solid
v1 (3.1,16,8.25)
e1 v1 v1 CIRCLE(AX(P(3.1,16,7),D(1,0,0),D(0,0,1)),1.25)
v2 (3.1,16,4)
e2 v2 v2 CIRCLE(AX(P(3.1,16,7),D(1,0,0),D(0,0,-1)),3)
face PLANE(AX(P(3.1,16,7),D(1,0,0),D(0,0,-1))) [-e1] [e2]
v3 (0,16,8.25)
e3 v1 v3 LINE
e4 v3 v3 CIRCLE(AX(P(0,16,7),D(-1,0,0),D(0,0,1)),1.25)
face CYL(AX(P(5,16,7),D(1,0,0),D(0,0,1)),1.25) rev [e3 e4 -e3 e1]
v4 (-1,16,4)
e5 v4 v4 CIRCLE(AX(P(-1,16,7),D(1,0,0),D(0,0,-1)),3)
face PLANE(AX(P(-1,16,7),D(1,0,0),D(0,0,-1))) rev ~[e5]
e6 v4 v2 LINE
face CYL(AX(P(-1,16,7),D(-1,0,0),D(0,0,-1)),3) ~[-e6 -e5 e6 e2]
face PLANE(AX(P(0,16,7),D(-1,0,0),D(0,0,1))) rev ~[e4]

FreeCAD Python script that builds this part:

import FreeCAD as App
import Part
import Sketcher

V = App.Vector

doc = App.newDocument("Part")
params = doc.addObject("Spreadsheet::Sheet", "Params")
for row, (alias, value) in enumerate([
    ("sketch1_diameter", "2.5 mm"),
    ("pad1_length", "5 mm"),
    ("sketch2_diameter", "6 mm"),
    ("pad2_length", "4.1 mm"),
], start=1):
    params.set(f"A{row}", alias)
    params.set(f"B{row}", "=" + value)
    params.setAlias(f"B{row}", alias)

body = doc.addObject("PartDesign::Body", "Body")

# Sketch on YZ plane
sketch1 = body.newObject("Sketcher::SketchObject", "Sketch")
sketch1.AttachmentSupport = (doc.getObject("YZ_Plane"), [""])
sketch1.MapMode = "FlatFace"
sketch1.AttachmentOffset = App.Placement(V(0, 0, 5), App.Rotation())
sketch1.addGeometry(Part.Circle(V(16, 7, 0), V(0, 0, 1), 1.2), False)
sketch1.addConstraint([
    Sketcher.Constraint("Diameter", 0, 2.5),
    Sketcher.Constraint("DistanceX", -1, 1, 0, 3, 16.0),
    Sketcher.Constraint("DistanceY", -1, 1, 0, 3, 7.0),
])
sketch1.setExpression("Constraints[0]", "Params.sketch1_diameter")
pad1 = body.newObject("PartDesign::Pad", "Pad")
pad1.Profile = sketch1
pad1.setExpression("Length", "Params.pad1_length")
pad1.Reversed = True
body2 = doc.addObject("PartDesign::Body", "Body001")

# Sketch on YZ plane
sketch2 = body2.newObject("Sketcher::SketchObject", "Sketch001")
sketch2.AttachmentSupport = (doc.getObject("YZ_Plane001"), [""])
sketch2.MapMode = "FlatFace"
sketch2.AttachmentOffset = App.Placement(V(0, 0, -1), App.Rotation())
sketch2.addGeometry(Part.Circle(V(16, 7, 0), V(0, 0, 1), 3), False)
sketch2.addConstraint([
    Sketcher.Constraint("Diameter", 0, 6.0),
    Sketcher.Constraint("DistanceX", -1, 1, 0, 3, 16.0),
    Sketcher.Constraint("DistanceY", -1, 1, 0, 3, 7.0),
])
sketch2.setExpression("Constraints[0]", "Params.sketch2_diameter")
pad2 = body2.newObject("PartDesign::Pad", "Pad001")
pad2.Profile = sketch2
pad2.setExpression("Length", "Params.pad2_length")
doc.recompute()

boolean = body2.newObject("PartDesign::Boolean", "Boolean")
boolean.Type = "Cut"
boolean.addObjects([body])

doc.recompute()
